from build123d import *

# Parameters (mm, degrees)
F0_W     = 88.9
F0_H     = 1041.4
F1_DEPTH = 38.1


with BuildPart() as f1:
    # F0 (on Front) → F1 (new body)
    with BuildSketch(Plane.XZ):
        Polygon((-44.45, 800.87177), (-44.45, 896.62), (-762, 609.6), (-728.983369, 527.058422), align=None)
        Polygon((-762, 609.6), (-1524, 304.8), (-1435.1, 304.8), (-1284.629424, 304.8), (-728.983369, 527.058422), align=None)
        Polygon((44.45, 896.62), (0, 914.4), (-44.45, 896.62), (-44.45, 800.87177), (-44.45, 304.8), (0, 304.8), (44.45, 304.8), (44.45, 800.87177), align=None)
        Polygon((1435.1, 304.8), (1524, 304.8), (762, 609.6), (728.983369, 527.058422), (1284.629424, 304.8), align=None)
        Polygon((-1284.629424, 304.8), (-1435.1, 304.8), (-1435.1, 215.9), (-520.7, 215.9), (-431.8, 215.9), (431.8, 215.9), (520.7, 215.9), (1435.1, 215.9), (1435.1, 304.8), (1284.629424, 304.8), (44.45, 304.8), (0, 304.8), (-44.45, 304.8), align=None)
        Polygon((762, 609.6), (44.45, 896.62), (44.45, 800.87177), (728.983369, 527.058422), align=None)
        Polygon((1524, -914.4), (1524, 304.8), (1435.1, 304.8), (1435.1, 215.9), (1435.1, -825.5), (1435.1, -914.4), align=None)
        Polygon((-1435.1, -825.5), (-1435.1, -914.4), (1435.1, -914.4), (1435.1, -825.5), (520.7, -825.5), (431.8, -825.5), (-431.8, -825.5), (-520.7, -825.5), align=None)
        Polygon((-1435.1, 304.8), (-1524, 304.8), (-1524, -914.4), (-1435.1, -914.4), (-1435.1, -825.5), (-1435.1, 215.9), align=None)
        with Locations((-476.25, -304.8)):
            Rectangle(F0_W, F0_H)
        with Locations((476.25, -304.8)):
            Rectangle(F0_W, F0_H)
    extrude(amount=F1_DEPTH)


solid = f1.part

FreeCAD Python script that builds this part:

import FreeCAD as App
import Part
import Sketcher

V = App.Vector
Q = App.Units.Quantity


def add_polygon(sketch, points):
    """Adds a closed chain of lines whose ends are joined by coincident constraints."""
    first, n = sketch.GeometryCount, len(points)
    for a, b in zip(points, points[1:] + points[:1]):
        sketch.addGeometry(Part.LineSegment(App.Vector(*a, 0), App.Vector(*b, 0)), False)
    for i in range(n):
        sketch.addConstraint(Sketcher.Constraint("Coincident", first + i, 2, first + (i + 1) % n, 1))

doc = App.newDocument("Part")
body = doc.addObject("PartDesign::Body", "Body")

# Sketch on XZ plane
sketch1 = body.newObject("Sketcher::SketchObject", "Sketch")
sketch1.AttachmentSupport = (doc.getObject("XZ_Plane"), [""])
sketch1.MapMode = "FlatFace"
add_polygon(sketch1, [(1524, -914.4), (1524, 304.8), (0, 914.4), (-1524, 304.8), (-1524, -914.4)])  # lines 0-4
add_polygon(sketch1, [(-1435.1, 215.9), (-520.7, 215.9), (-520.7, -825.5), (-1435.1, -825.5)])  # lines 5-8
add_polygon(sketch1, [(-431.8, 215.9), (431.8, 215.9), (431.8, -825.5), (-431.8, -825.5)])  # lines 9-12
add_polygon(sketch1, [(520.7, 215.9), (1435.1, 215.9), (1435.1, -825.5), (520.7, -825.5)])  # lines 13-16
add_polygon(sketch1, [(728.983369, 527.058422), (1284.629424, 304.8), (44.45, 304.8), (44.45, 800.87177)])  # lines 17-20
add_polygon(sketch1, [(-1284.629424, 304.8), (-728.983369, 527.058422), (-44.45, 800.87177), (-44.45, 304.8)])  # lines 21-24
sketch1.addConstraint([
    Sketcher.Constraint("Vertical", 0),
    Sketcher.Constraint("Vertical", 3),
    Sketcher.Constraint("Horizontal", 4),
    Sketcher.Constraint("Horizontal", 5),
    Sketcher.Constraint("Vertical", 6),
    Sketcher.Constraint("Horizontal", 7),
    Sketcher.Constraint("Vertical", 8),
    Sketcher.Constraint("Horizontal", 9),
    Sketcher.Constraint("Vertical", 10),
    Sketcher.Constraint("Horizontal", 11),
    Sketcher.Constraint("Vertical", 12),
    Sketcher.Constraint("Horizontal", 13),
    Sketcher.Constraint("Vertical", 14),
    Sketcher.Constraint("Horizontal", 15),
    Sketcher.Constraint("Vertical", 16),
    Sketcher.Constraint("Horizontal", 18),
    Sketcher.Constraint("Vertical", 19),
    Sketcher.Constraint("Vertical", 23),
    Sketcher.Constraint("Horizontal", 24),
    Sketcher.Constraint("Symmetric", 0, 2, 2, 2, -2),
    Sketcher.Constraint("Symmetric", 8, 2, 13, 2, -2),
    Sketcher.Constraint("Symmetric", 6, 2, 15, 2, -2),
    Sketcher.Constraint("Symmetric", 20, 2, 21, 2, -2),
    Sketcher.Constraint("Symmetric", 19, 2, 22, 2, -2),
    Sketcher.Constraint("Symmetric", 17, 2, 24, 2, -2),
    Sketcher.Constraint("PointOnObject", 1, 2, -2),
    Sketcher.Constraint("Parallel", 1, 17),
    Sketcher.Constraint("Parallel", 17, 20),
    Sketcher.Constraint("Horizontal", 8, 2, 9, 2),
    Sketcher.Constraint("Horizontal", 7, 2, 10, 2),
    Sketcher.Constraint("Horizontal", 2, 2, 17, 2),
    Sketcher.Constraint("DistanceX", 4, 1, 4, 2, Q("120 in")),
    Sketcher.Constraint("DistanceX", 5, 1, 5, 2, Q("36 in")),
    Sketcher.Constraint("DistanceX", 9, 1, 9, 2, Q("34 in")),
    Sketcher.Constraint("DistanceY", 0, 1, 0, 2, Q("48 in")),
    Sketcher.Constraint("DistanceY", 6, 2, 6, 1, Q("41 in")),
    Sketcher.Constraint("DistanceY", -1, 1, 0, 2, Q("12 in")),
    Sketcher.Constraint("DistanceY", -1, 1, 1, 2, Q("36 in")),
    Sketcher.Constraint("DistanceX", -1, 1, 9, 2, Q("17 in")),
    Sketcher.Constraint("DistanceX", 6, 2, 15, 2, Q("41 in")),
    Sketcher.Constraint("DistanceY", -1, 1, 5, 2, Q("8.5 in")),
    Sketcher.Constraint("DistanceX", 22, 2, 19, 2, Q("3.5 in")),
    Sketcher.Constraint("Distance", 20, Q("737.265002 mm")),
    Sketcher.Constraint("DistanceY", 19, 1, 19, 2, Q("496.07177 mm")),
])
pad1 = body.newObject("PartDesign::Pad", "Pad")
pad1.Profile = sketch1
pad1.Length = Q("1.5 in")

doc.recompute()
